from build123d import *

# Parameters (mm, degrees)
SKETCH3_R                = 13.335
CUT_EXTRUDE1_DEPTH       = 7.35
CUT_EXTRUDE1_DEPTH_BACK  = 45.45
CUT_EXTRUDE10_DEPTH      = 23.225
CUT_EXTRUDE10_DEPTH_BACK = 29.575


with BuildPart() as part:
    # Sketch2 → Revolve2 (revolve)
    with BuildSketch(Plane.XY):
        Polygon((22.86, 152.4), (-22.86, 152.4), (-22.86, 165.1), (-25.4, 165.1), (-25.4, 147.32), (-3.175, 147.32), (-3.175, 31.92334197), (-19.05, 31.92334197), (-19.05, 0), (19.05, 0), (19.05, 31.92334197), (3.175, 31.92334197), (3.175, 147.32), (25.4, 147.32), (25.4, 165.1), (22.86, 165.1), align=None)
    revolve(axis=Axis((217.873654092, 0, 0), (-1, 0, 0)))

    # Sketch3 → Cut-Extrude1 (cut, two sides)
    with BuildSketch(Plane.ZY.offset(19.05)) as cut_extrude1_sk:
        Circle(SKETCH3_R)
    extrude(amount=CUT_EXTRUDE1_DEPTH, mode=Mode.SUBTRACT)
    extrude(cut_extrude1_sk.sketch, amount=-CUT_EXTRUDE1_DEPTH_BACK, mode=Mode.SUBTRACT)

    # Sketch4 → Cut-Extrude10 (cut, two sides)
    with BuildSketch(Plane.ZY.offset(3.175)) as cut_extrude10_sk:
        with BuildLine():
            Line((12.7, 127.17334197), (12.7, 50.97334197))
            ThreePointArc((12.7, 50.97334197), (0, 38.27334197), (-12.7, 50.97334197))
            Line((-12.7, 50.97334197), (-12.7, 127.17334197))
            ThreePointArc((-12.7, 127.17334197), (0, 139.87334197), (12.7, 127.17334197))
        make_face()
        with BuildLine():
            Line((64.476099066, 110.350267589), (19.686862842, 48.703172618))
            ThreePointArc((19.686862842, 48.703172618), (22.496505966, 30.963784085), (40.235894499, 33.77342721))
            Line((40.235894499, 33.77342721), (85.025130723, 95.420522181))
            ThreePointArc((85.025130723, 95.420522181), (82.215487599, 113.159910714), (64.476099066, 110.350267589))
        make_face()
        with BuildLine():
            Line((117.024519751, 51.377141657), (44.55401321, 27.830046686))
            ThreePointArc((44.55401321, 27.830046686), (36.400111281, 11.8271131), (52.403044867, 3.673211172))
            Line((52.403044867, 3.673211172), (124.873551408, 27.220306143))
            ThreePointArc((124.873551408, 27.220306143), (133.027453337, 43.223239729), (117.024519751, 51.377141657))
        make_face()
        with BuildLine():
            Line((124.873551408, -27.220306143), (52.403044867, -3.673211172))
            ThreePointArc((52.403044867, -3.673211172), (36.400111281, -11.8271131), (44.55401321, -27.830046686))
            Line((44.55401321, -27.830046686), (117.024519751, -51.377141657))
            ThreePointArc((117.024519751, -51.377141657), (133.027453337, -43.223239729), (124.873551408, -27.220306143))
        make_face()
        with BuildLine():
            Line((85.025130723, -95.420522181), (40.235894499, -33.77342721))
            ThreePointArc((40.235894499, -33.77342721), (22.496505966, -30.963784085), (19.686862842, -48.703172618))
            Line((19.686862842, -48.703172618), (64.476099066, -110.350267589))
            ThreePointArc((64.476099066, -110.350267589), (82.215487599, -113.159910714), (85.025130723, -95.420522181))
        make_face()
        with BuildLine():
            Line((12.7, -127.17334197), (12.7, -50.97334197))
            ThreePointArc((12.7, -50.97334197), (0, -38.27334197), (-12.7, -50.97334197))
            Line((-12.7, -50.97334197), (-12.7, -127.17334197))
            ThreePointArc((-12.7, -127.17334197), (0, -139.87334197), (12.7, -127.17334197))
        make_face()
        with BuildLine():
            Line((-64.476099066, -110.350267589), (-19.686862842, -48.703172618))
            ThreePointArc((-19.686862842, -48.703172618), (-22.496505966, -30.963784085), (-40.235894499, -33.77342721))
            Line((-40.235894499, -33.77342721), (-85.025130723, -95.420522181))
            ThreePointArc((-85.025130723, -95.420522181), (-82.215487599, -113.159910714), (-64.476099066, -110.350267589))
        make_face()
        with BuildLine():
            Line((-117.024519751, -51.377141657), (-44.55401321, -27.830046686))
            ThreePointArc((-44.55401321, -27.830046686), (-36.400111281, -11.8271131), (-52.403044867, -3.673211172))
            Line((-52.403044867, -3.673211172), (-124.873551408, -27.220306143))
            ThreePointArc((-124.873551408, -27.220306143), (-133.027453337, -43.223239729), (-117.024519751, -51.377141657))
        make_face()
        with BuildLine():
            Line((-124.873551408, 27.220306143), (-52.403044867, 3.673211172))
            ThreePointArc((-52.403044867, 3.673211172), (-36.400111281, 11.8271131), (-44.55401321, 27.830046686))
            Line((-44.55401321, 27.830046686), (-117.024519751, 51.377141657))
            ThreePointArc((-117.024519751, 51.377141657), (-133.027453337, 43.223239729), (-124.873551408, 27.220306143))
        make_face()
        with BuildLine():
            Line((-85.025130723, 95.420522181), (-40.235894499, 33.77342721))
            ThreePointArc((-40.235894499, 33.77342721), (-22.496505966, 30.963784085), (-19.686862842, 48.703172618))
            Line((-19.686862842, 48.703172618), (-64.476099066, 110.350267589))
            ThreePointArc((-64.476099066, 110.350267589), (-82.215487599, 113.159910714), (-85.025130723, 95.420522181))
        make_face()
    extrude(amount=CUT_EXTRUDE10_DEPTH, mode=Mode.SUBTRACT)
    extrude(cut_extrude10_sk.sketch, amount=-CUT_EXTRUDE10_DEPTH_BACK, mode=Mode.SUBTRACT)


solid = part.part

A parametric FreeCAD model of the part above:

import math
import FreeCAD as App
import Part
import Sketcher
from FreeCAD import Vector
Q = App.Units.Quantity


def add_polygon(sketch, points):
    """Adds a closed chain of lines whose ends are joined by coincident constraints."""
    first, n = sketch.GeometryCount, len(points)
    for a, b in zip(points, points[1:] + points[:1]):
        sketch.addGeometry(Part.LineSegment(App.Vector(*a, 0), App.Vector(*b, 0)), False)
    for i in range(n):
        sketch.addConstraint(Sketcher.Constraint("Coincident", first + i, 2, first + (i + 1) % n, 1))

doc = App.newDocument("Part")
body = doc.addObject("PartDesign::Body", "Body")

# Sketch on XY plane
sketch1 = doc.addObject("Sketcher::SketchObject", "Sketch")
body.addObject(sketch1)
sketch1.AttachmentSupport = (doc.XY_Plane, [""])
sketch1.MapMode = "FlatFace"
add_polygon(sketch1, [(22.86, 152.4), (-22.86, 152.4), (-22.86, 165.1), (-25.4, 165.1), (-25.4, 147.32), (-3.175, 147.32), (-3.175, 31.923342), (-19.05, 31.923342), (-19.05, 0), (19.05, 0), (19.05, 31.923342), (3.175, 31.923342), (3.175, 147.32), (25.4, 147.32), (25.4, 165.1), (22.86, 165.1)])  # lines 0-15
sketch1.addConstraint([
    Sketcher.Constraint("Horizontal", 0),
    Sketcher.Constraint("Vertical", 1),
    Sketcher.Constraint("Horizontal", 2),
    Sketcher.Constraint("Vertical", 3),
    Sketcher.Constraint("Horizontal", 4),
    Sketcher.Constraint("Vertical", 5),
    Sketcher.Constraint("Horizontal", 6),
    Sketcher.Constraint("Vertical", 7),
    Sketcher.Constraint("Horizontal", 8),
    Sketcher.Constraint("Vertical", 9),
    Sketcher.Constraint("Horizontal", 10),
    Sketcher.Constraint("Vertical", 11),
    Sketcher.Constraint("Horizontal", 12),
    Sketcher.Constraint("Vertical", 13),
    Sketcher.Constraint("Horizontal", 14),
    Sketcher.Constraint("Vertical", 15),
    Sketcher.Constraint("Symmetric", 7, 2, 8, 2, -1, 1),
    Sketcher.Constraint("Symmetric", 5, 2, 10, 2, -2),
    Sketcher.Constraint("Symmetric", 3, 2, 12, 2, -2),
    Sketcher.Constraint("Symmetric", 1, 2, 14, 2, -2),
    Sketcher.Constraint("DistanceX", 0, 2, 0, 1, Q("1.8 in")),
    Sketcher.Constraint("DistanceX", 2, 2, 2, 1, Q("0.1 in")),
    Sketcher.Constraint("DistanceX", 8, 1, 8, 2, Q("1.5 in")),
    Sketcher.Constraint("DistanceY", 1, 1, 1, 2, Q("0.5 in")),
    Sketcher.Constraint("DistanceY", 3, 2, 3, 1, Q("0.7 in")),
    Sketcher.Constraint("DistanceY", -1, 1, 0, 2, Q("6 in")),
    Sketcher.Constraint("DistanceX", 4, 1, 4, 2, Q("0.875 in")),
    Sketcher.Constraint("DistanceY", 5, 2, 5, 1, 115.396658),
])
revolution = doc.addObject("PartDesign::Revolution", "Revolution")
body.addObject(revolution)
revolution.Profile = sketch1
revolution.ReferenceAxis = (sketch1, ["H_Axis"])
revolution.Angle = 360

# Sketch on YZ plane
sketch2 = doc.addObject("Sketcher::SketchObject", "Sketch001")
body.addObject(sketch2)
sketch2.AttachmentSupport = (doc.YZ_Plane, [""])
sketch2.MapMode = "FlatFace"
sketch2.AttachmentOffset = App.Placement(Vector(0, 0, -0.75 * 25.4), App.Rotation())
sketch2.addGeometry(Part.Circle(Vector(0, 0, 0), Vector(0, 0, 1), 13.335), False)
sketch2.addConstraint([
    Sketcher.Constraint("Coincident", 0, 3, -1, 1),
    Sketcher.Constraint("Diameter", 0, Q("1.05 in")),
])
pocket1 = doc.addObject("PartDesign::Pocket", "Pocket")
body.addObject(pocket1)
pocket1.Profile = sketch2
pocket1.Type = "ThroughAll"
pocket1.Midplane = True

# Sketch on YZ plane
sketch3 = doc.addObject("Sketcher::SketchObject", "Sketch002")
body.addObject(sketch3)
sketch3.AttachmentSupport = (doc.YZ_Plane, [""])
sketch3.MapMode = "FlatFace"
sketch3.AttachmentOffset = App.Placement(Vector(0, 0, -0.125 * 25.4), App.Rotation())
sketch3.addGeometry([
    Part.LineSegment(Vector(50.973342, 12.7, 0), Vector(127.173342, 12.7, 0)),  # 0
    Part.ArcOfCircle(Part.Circle(Vector(127.173342, 0, 0), Vector(0, 0, 1), 12.7), math.radians(-90), math.radians(90)),  # 1
    Part.LineSegment(Vector(127.173342, -12.7, 0), Vector(50.973342, -12.7, 0)),  # 2
    Part.ArcOfCircle(Part.Circle(Vector(50.973342, 0, 0), Vector(0, 0, 1), 12.7), math.radians(90), math.radians(270)),  # 3
    Part.LineSegment(Vector(110.350268, 64.476099, 0), Vector(48.703173, 19.686863, 0)),  # 4
    Part.ArcOfCircle(Part.Circle(Vector(41.2383, 29.961379, 0), Vector(0, 0, 1), 12.7), math.radians(126), math.radians(306)),  # 5
    Part.LineSegment(Vector(33.773427, 40.235894, 0), Vector(95.420522, 85.025131, 0)),  # 6
    Part.ArcOfCircle(Part.Circle(Vector(102.885395, 74.750615, 0), Vector(0, 0, 1), 12.7), math.radians(-54), math.radians(126)),  # 7
    Part.LineSegment(Vector(51.377142, 117.02452, 0), Vector(27.830047, 44.554013, 0)),  # 8
    Part.ArcOfCircle(Part.Circle(Vector(15.751629, 48.478529, 0), Vector(0, 0, 1), 12.7), math.radians(162), math.radians(342)),  # 9
    Part.LineSegment(Vector(3.673211, 52.403045, 0), Vector(27.220306, 124.873551, 0)),  # 10
    Part.ArcOfCircle(Part.Circle(Vector(39.298724, 120.949036, 0), Vector(0, 0, 1), 12.7), math.radians(-18), math.radians(162)),  # 11
    Part.LineSegment(Vector(-27.220306, 124.873551, 0), Vector(-3.673211, 52.403045, 0)),  # 12
    Part.ArcOfCircle(Part.Circle(Vector(-15.751629, 48.478529, 0), Vector(0, 0, 1), 12.7), math.radians(-162), math.radians(18)),  # 13
    Part.LineSegment(Vector(-27.830047, 44.554013, 0), Vector(-51.377142, 117.02452, 0)),  # 14
    Part.ArcOfCircle(Part.Circle(Vector(-39.298724, 120.949036, 0), Vector(0, 0, 1), 12.7), math.radians(18), math.radians(198)),  # 15
    Part.LineSegment(Vector(-95.420522, 85.025131, 0), Vector(-33.773427, 40.235894, 0)),  # 16
    Part.ArcOfCircle(Part.Circle(Vector(-41.2383, 29.961379, 0), Vector(0, 0, 1), 12.7), math.radians(-126), math.radians(54)),  # 17
    Part.LineSegment(Vector(-48.703173, 19.686863, 0), Vector(-110.350268, 64.476099, 0)),  # 18
    Part.ArcOfCircle(Part.Circle(Vector(-102.885395, 74.750615, 0), Vector(0, 0, 1), 12.7), math.radians(54), math.radians(234)),  # 19
    Part.LineSegment(Vector(-127.173342, 12.7, 0), Vector(-50.973342, 12.7, 0)),  # 20
    Part.ArcOfCircle(Part.Circle(Vector(-50.973342, 0, 0), Vector(0, 0, 1), 12.7), math.radians(-90), math.radians(90)),  # 21
    Part.LineSegment(Vector(-50.973342, -12.7, 0), Vector(-127.173342, -12.7, 0)),  # 22
    Part.ArcOfCircle(Part.Circle(Vector(-127.173342, 0, 0), Vector(0, 0, 1), 12.7), math.radians(90), math.radians(270)),  # 23
    Part.LineSegment(Vector(-110.350268, -64.476099, 0), Vector(-48.703173, -19.686863, 0)),  # 24
    Part.ArcOfCircle(Part.Circle(Vector(-41.2383, -29.961379, 0), Vector(0, 0, 1), 12.7), math.radians(-54), math.radians(126)),  # 25
    Part.LineSegment(Vector(-33.773427, -40.235894, 0), Vector(-95.420522, -85.025131, 0)),  # 26
    Part.ArcOfCircle(Part.Circle(Vector(-102.885395, -74.750615, 0), Vector(0, 0, 1), 12.7), math.radians(126), math.radians(306)),  # 27
    Part.LineSegment(Vector(-51.377142, -117.02452, 0), Vector(-27.830047, -44.554013, 0)),  # 28
    Part.ArcOfCircle(Part.Circle(Vector(-15.751629, -48.478529, 0), Vector(0, 0, 1), 12.7), math.radians(-18), math.radians(162)),  # 29
    Part.LineSegment(Vector(-3.673211, -52.403045, 0), Vector(-27.220306, -124.873551, 0)),  # 30
    Part.ArcOfCircle(Part.Circle(Vector(-39.298724, -120.949036, 0), Vector(0, 0, 1), 12.7), math.radians(162), math.radians(342)),  # 31
    Part.LineSegment(Vector(27.220306, -124.873551, 0), Vector(3.673211, -52.403045, 0)),  # 32
    Part.ArcOfCircle(Part.Circle(Vector(15.751629, -48.478529, 0), Vector(0, 0, 1), 12.7), math.radians(18), math.radians(198)),  # 33
    Part.LineSegment(Vector(27.830047, -44.554013, 0), Vector(51.377142, -117.02452, 0)),  # 34
    Part.ArcOfCircle(Part.Circle(Vector(39.298724, -120.949036, 0), Vector(0, 0, 1), 12.7), math.radians(-162), math.radians(18)),  # 35
    Part.LineSegment(Vector(95.420522, -85.025131, 0), Vector(33.773427, -40.235894, 0)),  # 36
    Part.ArcOfCircle(Part.Circle(Vector(41.2383, -29.961379, 0), Vector(0, 0, 1), 12.7), math.radians(54), math.radians(234)),  # 37
    Part.LineSegment(Vector(48.703173, -19.686863, 0), Vector(110.350268, -64.476099, 0)),  # 38
    Part.ArcOfCircle(Part.Circle(Vector(102.885395, -74.750615, 0), Vector(0, 0, 1), 12.7), math.radians(-126), math.radians(54)),  # 39
], False)
sketch3.addConstraint([
    Sketcher.Constraint("Tangent", 0, 2, 1, 2),
    Sketcher.Constraint("Tangent", 1, 1, 2, 1),
    Sketcher.Constraint("Tangent", 2, 2, 3, 2),
    Sketcher.Constraint("Tangent", 3, 1, 0, 1),
    Sketcher.Constraint("Tangent", 4, 2, 5, 2),
    Sketcher.Constraint("Tangent", 5, 1, 6, 1),
    Sketcher.Constraint("Tangent", 6, 2, 7, 2),
    Sketcher.Constraint("Tangent", 7, 1, 4, 1),
    Sketcher.Constraint("Tangent", 8, 2, 9, 2),
    Sketcher.Constraint("Tangent", 9, 1, 10, 1),
    Sketcher.Constraint("Tangent", 10, 2, 11, 2),
    Sketcher.Constraint("Tangent", 11, 1, 8, 1),
    Sketcher.Constraint("Tangent", 12, 2, 13, 2),
    Sketcher.Constraint("Tangent", 13, 1, 14, 1),
    Sketcher.Constraint("Tangent", 14, 2, 15, 2),
    Sketcher.Constraint("Tangent", 15, 1, 12, 1),
    Sketcher.Constraint("Tangent", 16, 2, 17, 2),
    Sketcher.Constraint("Tangent", 17, 1, 18, 1),
    Sketcher.Constraint("Tangent", 18, 2, 19, 2),
    Sketcher.Constraint("Tangent", 19, 1, 16, 1),
    Sketcher.Constraint("Tangent", 20, 2, 21, 2),
    Sketcher.Constraint("Tangent", 21, 1, 22, 1),
    Sketcher.Constraint("Tangent", 22, 2, 23, 2),
    Sketcher.Constraint("Tangent", 23, 1, 20, 1),
    Sketcher.Constraint("Tangent", 24, 2, 25, 2),
    Sketcher.Constraint("Tangent", 25, 1, 26, 1),
    Sketcher.Constraint("Tangent", 26, 2, 27, 2),
    Sketcher.Constraint("Tangent", 27, 1, 24, 1),
    Sketcher.Constraint("Tangent", 28, 2, 29, 2),
    Sketcher.Constraint("Tangent", 29, 1, 30, 1),
    Sketcher.Constraint("Tangent", 30, 2, 31, 2),
    Sketcher.Constraint("Tangent", 31, 1, 28, 1),
    Sketcher.Constraint("Tangent", 32, 2, 33, 2),
    Sketcher.Constraint("Tangent", 33, 1, 34, 1),
    Sketcher.Constraint("Tangent", 34, 2, 35, 2),
    Sketcher.Constraint("Tangent", 35, 1, 32, 1),
    Sketcher.Constraint("Tangent", 36, 2, 37, 2),
    Sketcher.Constraint("Tangent", 37, 1, 38, 1),
    Sketcher.Constraint("Tangent", 38, 2, 39, 2),
    Sketcher.Constraint("Tangent", 39, 1, 36, 1),
    Sketcher.Constraint("Horizontal", 0),
    Sketcher.Constraint("Horizontal", 2),
    Sketcher.Constraint("Horizontal", 20),
    Sketcher.Constraint("Horizontal", 22),
    Sketcher.Constraint("Equal", 3, 5),
    Sketcher.Constraint("Equal", 5, 7),
    Sketcher.Constraint("Equal", 7, 9),
    Sketcher.Constraint("Equal", 9, 11),
    Sketcher.Constraint("Equal", 11, 13),
    Sketcher.Constraint("Equal", 13, 15),
    Sketcher.Constraint("Equal", 15, 17),
    Sketcher.Constraint("Equal", 17, 19),
    Sketcher.Constraint("Equal", 19, 21),
    Sketcher.Constraint("Equal", 23, 25),
    Sketcher.Constraint("Equal", 25, 27),
    Sketcher.Constraint("Equal", 27, 29),
    Sketcher.Constraint("Equal", 29, 31),
    Sketcher.Constraint("Equal", 31, 33),
    Sketcher.Constraint("Equal", 33, 35),
    Sketcher.Constraint("Equal", 35, 37),
    Sketcher.Constraint("Equal", 37, 39),
    Sketcher.Constraint("Symmetric", 3, 3, 21, 3, -1, 1),
    Sketcher.Constraint("Symmetric", 5, 3, 25, 3, -1, 1),
    Sketcher.Constraint("Symmetric", 7, 3, 27, 3, -1, 1),
    Sketcher.Constraint("Symmetric", 9, 3, 29, 3, -1, 1),
    Sketcher.Constraint("Symmetric", 11, 3, 31, 3, -1, 1),
    Sketcher.Constraint("Symmetric", 13, 3, 33, 3, -1, 1),
    Sketcher.Constraint("Symmetric", 15, 3, 35, 3, -1, 1),
    Sketcher.Constraint("Symmetric", 17, 3, 37, 3, -1, 1),
    Sketcher.Constraint("Symmetric", 19, 3, 39, 3, -1, 1),
    Sketcher.Constraint("Symmetric", 9, 3, 13, 3, -2),
    Sketcher.Constraint("Symmetric", 11, 3, 15, 3, -2),
    Sketcher.Constraint("Symmetric", 5, 3, 17, 3, -2),
    Sketcher.Constraint("Symmetric", 7, 3, 19, 3, -2),
    Sketcher.Constraint("Symmetric", 1, 3, 23, 3, -2),
    Sketcher.Constraint("Equal", 6, 8),
    Sketcher.Constraint("Radius", 1, Q("0.5 in")),
    Sketcher.Constraint("DistanceX", 0, 1, 0, 2, Q("3 in")),
    Sketcher.Constraint("Distance", 4, Q("3 in")),
    Sketcher.Constraint("Angle", 4, Q("-144 deg")),
    Sketcher.Constraint("Angle", 8, Q("-108 deg")),
    Sketcher.Constraint("DistanceX", 15, 3, 7, 3, Q("5.5978 in")),
    Sketcher.Constraint("DistanceX", -1, 1, 5, 3, 41.2383),
    Sketcher.Constraint("DistanceY", -1, 1, 7, 1, 64.476099),
    Sketcher.Constraint("DistanceX", -1, 1, 1, 3, 127.173342),
    Sketcher.Constraint("DistanceY", -1, 1, 9, 3, 48.478529),
])
pocket2 = doc.addObject("PartDesign::Pocket", "Pocket001")
body.addObject(pocket2)
pocket2.Profile = sketch3
pocket2.Type = "ThroughAll"
pocket2.Midplane = True

doc.recompute()
